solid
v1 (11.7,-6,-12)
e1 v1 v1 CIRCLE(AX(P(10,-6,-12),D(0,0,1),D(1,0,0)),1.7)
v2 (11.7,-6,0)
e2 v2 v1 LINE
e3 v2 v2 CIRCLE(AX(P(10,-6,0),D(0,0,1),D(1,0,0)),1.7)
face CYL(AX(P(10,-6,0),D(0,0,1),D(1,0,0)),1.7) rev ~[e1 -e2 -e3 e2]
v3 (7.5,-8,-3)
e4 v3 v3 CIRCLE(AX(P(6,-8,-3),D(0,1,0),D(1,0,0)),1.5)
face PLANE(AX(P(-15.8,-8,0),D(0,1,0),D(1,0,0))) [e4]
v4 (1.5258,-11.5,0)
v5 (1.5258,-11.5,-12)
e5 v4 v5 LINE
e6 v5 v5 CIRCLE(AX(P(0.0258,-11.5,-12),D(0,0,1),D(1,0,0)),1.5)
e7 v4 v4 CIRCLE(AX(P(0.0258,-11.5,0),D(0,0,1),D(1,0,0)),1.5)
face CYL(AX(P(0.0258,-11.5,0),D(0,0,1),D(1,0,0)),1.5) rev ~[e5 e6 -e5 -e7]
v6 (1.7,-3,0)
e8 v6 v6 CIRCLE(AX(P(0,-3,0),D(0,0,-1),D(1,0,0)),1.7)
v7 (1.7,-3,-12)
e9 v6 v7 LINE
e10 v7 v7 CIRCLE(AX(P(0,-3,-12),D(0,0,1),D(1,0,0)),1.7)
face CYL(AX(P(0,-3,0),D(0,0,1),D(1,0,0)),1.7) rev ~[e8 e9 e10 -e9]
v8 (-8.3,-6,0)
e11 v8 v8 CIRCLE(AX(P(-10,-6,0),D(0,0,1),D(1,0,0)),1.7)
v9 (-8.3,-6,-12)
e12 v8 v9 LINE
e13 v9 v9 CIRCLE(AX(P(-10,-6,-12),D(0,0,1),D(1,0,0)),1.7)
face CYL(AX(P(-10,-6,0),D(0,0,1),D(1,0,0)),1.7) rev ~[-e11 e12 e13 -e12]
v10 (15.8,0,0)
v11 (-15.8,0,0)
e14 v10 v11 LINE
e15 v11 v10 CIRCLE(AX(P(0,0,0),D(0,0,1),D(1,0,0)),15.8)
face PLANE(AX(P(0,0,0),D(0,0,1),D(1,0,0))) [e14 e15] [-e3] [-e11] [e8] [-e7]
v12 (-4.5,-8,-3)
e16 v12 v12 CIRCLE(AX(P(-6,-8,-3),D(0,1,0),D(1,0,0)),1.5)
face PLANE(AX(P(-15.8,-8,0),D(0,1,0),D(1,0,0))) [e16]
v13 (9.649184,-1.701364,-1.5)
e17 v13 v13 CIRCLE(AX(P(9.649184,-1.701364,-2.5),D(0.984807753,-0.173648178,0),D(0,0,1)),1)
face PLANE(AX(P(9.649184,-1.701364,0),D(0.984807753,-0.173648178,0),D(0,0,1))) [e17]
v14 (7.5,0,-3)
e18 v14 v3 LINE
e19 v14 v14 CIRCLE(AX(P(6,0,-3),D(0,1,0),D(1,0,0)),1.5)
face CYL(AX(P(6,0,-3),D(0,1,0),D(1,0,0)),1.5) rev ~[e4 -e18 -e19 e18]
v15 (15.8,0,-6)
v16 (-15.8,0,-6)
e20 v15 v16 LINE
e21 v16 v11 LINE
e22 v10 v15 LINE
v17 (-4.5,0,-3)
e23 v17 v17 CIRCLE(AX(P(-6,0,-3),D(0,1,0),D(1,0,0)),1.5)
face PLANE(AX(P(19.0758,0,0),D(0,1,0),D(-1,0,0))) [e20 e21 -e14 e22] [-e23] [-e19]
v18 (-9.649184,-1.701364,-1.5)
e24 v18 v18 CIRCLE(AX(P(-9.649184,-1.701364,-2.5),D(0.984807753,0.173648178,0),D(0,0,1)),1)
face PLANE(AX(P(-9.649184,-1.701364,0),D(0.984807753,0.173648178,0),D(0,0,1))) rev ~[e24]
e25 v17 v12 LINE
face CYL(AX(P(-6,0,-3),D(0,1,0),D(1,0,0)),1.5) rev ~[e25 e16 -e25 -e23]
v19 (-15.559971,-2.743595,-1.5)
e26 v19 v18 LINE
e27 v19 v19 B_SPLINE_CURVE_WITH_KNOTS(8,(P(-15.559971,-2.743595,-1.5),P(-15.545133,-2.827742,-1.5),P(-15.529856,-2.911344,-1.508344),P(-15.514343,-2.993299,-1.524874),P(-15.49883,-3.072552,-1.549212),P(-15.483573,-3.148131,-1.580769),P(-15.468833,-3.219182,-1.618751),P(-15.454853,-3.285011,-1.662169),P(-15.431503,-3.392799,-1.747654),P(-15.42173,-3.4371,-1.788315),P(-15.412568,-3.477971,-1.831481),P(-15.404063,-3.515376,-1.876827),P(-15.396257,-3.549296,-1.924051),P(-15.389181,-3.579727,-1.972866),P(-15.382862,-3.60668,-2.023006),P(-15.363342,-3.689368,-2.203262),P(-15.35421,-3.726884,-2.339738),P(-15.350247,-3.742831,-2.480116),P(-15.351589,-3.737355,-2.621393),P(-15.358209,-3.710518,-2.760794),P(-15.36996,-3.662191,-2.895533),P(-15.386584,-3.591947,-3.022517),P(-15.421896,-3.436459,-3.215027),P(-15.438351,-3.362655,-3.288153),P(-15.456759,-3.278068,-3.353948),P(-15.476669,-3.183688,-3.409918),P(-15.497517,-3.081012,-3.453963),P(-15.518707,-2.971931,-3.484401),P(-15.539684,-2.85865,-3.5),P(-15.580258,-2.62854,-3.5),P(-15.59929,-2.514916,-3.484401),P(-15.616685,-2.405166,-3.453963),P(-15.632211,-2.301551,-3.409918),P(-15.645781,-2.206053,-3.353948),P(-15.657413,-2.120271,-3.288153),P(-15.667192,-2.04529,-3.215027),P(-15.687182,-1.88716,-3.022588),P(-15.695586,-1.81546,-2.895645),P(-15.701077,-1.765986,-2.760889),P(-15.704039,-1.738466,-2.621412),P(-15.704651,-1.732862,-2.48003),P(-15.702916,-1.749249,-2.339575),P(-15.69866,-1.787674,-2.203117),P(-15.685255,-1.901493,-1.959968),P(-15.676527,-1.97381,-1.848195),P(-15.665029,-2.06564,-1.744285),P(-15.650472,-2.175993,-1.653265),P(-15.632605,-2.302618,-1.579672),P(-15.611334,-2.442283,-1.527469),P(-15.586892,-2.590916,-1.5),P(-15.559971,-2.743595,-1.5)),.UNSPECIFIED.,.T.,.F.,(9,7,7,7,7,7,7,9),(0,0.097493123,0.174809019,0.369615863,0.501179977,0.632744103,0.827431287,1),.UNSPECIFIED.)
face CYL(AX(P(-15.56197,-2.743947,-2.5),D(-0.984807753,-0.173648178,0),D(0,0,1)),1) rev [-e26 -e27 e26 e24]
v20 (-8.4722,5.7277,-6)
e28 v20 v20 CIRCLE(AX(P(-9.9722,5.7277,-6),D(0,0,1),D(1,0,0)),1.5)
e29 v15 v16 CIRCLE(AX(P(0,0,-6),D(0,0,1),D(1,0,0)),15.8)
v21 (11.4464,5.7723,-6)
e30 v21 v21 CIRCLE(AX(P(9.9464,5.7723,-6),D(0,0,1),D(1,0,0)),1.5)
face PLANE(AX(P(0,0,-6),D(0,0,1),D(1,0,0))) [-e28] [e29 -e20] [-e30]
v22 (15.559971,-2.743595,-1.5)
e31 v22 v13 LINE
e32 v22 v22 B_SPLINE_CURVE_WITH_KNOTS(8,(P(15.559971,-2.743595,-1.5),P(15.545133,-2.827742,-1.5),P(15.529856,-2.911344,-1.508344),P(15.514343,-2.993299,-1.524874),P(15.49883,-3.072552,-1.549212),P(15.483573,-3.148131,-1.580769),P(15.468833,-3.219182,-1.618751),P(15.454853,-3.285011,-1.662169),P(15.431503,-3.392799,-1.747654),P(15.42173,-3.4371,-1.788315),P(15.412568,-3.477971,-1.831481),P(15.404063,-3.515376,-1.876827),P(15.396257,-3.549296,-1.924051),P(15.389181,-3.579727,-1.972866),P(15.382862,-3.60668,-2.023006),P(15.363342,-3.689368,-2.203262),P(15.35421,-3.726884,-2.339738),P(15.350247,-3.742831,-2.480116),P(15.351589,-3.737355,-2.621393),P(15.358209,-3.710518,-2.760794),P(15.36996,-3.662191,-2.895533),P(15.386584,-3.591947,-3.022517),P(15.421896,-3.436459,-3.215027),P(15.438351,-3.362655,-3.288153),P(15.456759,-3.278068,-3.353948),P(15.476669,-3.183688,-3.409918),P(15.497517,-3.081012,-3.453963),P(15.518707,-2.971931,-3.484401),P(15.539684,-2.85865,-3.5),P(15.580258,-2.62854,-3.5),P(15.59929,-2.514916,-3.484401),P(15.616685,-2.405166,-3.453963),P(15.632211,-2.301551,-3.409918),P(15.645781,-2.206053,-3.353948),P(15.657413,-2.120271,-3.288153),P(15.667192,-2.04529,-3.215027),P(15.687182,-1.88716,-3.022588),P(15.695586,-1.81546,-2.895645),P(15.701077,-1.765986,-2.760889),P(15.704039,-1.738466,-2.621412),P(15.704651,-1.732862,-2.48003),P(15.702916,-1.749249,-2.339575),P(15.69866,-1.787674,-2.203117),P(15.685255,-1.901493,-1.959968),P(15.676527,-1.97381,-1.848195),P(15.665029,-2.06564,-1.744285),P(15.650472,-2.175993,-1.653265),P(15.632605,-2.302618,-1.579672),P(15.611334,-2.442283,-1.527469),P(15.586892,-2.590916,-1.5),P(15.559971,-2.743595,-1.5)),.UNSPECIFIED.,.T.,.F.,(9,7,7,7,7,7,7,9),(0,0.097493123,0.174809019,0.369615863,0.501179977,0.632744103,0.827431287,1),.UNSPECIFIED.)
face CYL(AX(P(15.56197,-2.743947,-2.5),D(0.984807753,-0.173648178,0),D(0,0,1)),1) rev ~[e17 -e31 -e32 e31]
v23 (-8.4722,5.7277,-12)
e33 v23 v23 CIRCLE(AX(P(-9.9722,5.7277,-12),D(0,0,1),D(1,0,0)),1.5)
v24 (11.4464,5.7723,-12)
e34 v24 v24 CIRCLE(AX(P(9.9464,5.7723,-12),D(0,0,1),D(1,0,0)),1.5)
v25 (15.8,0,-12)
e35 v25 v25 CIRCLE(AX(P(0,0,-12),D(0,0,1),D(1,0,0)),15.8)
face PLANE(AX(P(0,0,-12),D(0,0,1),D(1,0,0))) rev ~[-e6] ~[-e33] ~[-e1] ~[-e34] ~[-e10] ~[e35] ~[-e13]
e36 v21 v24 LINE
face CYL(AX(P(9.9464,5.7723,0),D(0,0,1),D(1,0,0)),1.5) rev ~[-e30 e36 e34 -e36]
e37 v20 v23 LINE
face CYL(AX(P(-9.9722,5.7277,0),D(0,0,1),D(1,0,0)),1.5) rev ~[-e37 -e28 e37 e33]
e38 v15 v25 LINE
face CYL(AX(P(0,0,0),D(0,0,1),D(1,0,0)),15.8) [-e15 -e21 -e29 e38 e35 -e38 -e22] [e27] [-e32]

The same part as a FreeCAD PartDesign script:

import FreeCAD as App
import Part
import Sketcher
Q = App.Units.Quantity

doc = App.newDocument("Part")
body = doc.addObject("PartDesign::Body", "Body")

sketch1 = body.newObject("Sketcher::SketchObject", "Sketch")
sketch1.AttachmentSupport = (doc.getObject("XY_Plane"), [""])
sketch1.MapMode = "FlatFace"
sketch1.addGeometry(Part.Circle(App.Vector(0, 0, 0), App.Vector(0, 0, 1), 15.8), False)
sketch1.addConstraint([
    Sketcher.Constraint("Coincident", 0, 3, -1, 1),
    Sketcher.Constraint("Diameter", 0, Q("31.6 mm")),
])
pad1 = body.newObject("PartDesign::Pad", "Pad")
pad1.Profile = sketch1
pad1.Length = 12
pad1.Reversed = True

sketch2 = body.newObject("Sketcher::SketchObject", "Sketch001")
sketch2.AttachmentSupport = (doc.getObject("XY_Plane"), [""])
sketch2.MapMode = "FlatFace"
sketch2.addGeometry([
    Part.Circle(App.Vector(0.0258, -11.5, 0), App.Vector(0, 0, 1), 1.5),
    Part.Circle(App.Vector(9.9464, 5.7723, 0), App.Vector(0, 0, 1), 1.5),
    Part.Circle(App.Vector(-9.9722, 5.7277, 0), App.Vector(0, 0, 1), 1.5),
], False)
sketch2.addConstraint([
    Sketcher.Constraint("Equal", 0, 1),
    Sketcher.Constraint("Equal", 1, 2),
    Sketcher.Constraint("Diameter", 0, Q("3 mm")),
    Sketcher.Constraint("DistanceY", 0, 3, -1, 1, Q("11.5 mm")),
    Sketcher.Constraint("DistanceX", 2, 3, 0, 3, Q("9.998 mm")),
    Sketcher.Constraint("DistanceX", -1, 1, 0, 3, Q("0.0258 mm")),
    Sketcher.Constraint("DistanceX", -1, 1, 1, 3, Q("9.9464 mm")),
    Sketcher.Constraint("DistanceY", -1, 1, 1, 3, Q("5.7723 mm")),
    Sketcher.Constraint("DistanceY", -1, 1, 2, 3, Q("5.7277 mm")),
])
pocket1 = body.newObject("PartDesign::Pocket", "Pocket")
pocket1.Profile = sketch2
pocket1.Type = "ThroughAll"

sketch3 = body.newObject("Sketcher::SketchObject", "Sketch002")
sketch3.AttachmentSupport = (doc.getObject("XY_Plane"), [""])
sketch3.MapMode = "FlatFace"
sketch3.addGeometry([
    Part.Circle(App.Vector(-10, -6, 0), App.Vector(0, 0, 1), 1.7),
    Part.Circle(App.Vector(10, -6, 0), App.Vector(0, 0, 1), 1.7),
    Part.Circle(App.Vector(0, -3, 0), App.Vector(0, 0, 1), 1.7),
], False)
sketch3.addConstraint([
    Sketcher.Constraint("Equal", 0, 1),
    Sketcher.Constraint("Equal", 1, 2),
    Sketcher.Constraint("Symmetric", 0, 3, 1, 3, -2),
    Sketcher.Constraint("PointOnObject", 2, 3, -2),
    Sketcher.Constraint("Diameter", 0, Q("3.4 mm")),
    Sketcher.Constraint("DistanceX", 0, 3, -1, 1, Q("10 mm")),
    Sketcher.Constraint("DistanceY", 0, 3, -1, 1, Q("6 mm")),
    Sketcher.Constraint("DistanceY", 2, 3, -1, 1, Q("3 mm")),
])
pocket2 = body.newObject("PartDesign::Pocket", "Pocket001")
pocket2.Profile = sketch3
pocket2.Type = "ThroughAll"

sketch4 = body.newObject("Sketcher::SketchObject", "Sketch003")
sketch4.Placement = App.Placement(App.Vector(-15.56, -2.7436, 0), App.Rotation(App.Vector(0, 0, 1), App.Vector(0.173648178, -0.984807753, 0), App.Vector(0.984807753, 0.173648178, 0), "ZXY"))
sketch4.addGeometry(Part.Circle(App.Vector(-2.5, 0, 0), App.Vector(0, 0, 1), 1), False)
sketch4.addConstraint([
    Sketcher.Constraint("PointOnObject", 0, 3, -1),
    Sketcher.Constraint("Diameter", 0, Q("2 mm")),
    Sketcher.Constraint("DistanceX", 0, 3, -1, 1, Q("2.5 mm")),
])
pocket3 = body.newObject("PartDesign::Pocket", "Pocket002")
pocket3.Profile = sketch4
pocket3.Length = 6
pocket3.Reversed = True

sketch5 = body.newObject("Sketcher::SketchObject", "Sketch004")
sketch5.Placement = App.Placement(App.Vector(15.56, -2.7436, 0), App.Rotation(App.Vector(0, 0, 1), App.Vector(-0.173648178, -0.984807753, 0), App.Vector(0.984807753, -0.173648178, 0), "ZXY"))
sketch5.addGeometry(Part.Circle(App.Vector(-2.5, 0, 0), App.Vector(0, 0, 1), 1), False)
sketch5.addConstraint([
    Sketcher.Constraint("PointOnObject", 0, 3, -1),
    Sketcher.Constraint("Diameter", 0, Q("2 mm")),
    Sketcher.Constraint("DistanceX", 0, 3, -1, 1, Q("2.5 mm")),
])
pocket4 = body.newObject("PartDesign::Pocket", "Pocket003")
pocket4.Profile = sketch5
pocket4.Length = 6

sketch6 = body.newObject("Sketcher::SketchObject", "Sketch005")
sketch6.AttachmentSupport = (doc.getObject("XY_Plane"), [""])
sketch6.MapMode = "FlatFace"
sketch6.addGeometry([
    Part.LineSegment(App.Vector(19.0758, 17.2113, 0), App.Vector(-18.9802, 17.2113, 0)),
    Part.LineSegment(App.Vector(-18.9802, 17.2113, 0), App.Vector(-18.9802, 0, 0)),
    Part.LineSegment(App.Vector(-18.9802, 0, 0), App.Vector(19.0758, 0, 0)),
    Part.LineSegment(App.Vector(19.0758, 0, 0), App.Vector(19.0758, 17.2113, 0)),
], False)
sketch6.addConstraint([
    Sketcher.Constraint("Coincident", 0, 2, 1, 1),
    Sketcher.Constraint("Coincident", 1, 2, 2, 1),
    Sketcher.Constraint("Coincident", 2, 2, 3, 1),
    Sketcher.Constraint("Coincident", 3, 2, 0, 1),
    Sketcher.Constraint("Horizontal", 0),
    Sketcher.Constraint("Vertical", 1),
    Sketcher.Constraint("Horizontal", 2),
    Sketcher.Constraint("Vertical", 3),
    Sketcher.Constraint("PointOnObject", 1, 2, -1),
    Sketcher.Constraint("DistanceX", 0, 2, 0, 1, Q("38.056 mm")),
    Sketcher.Constraint("DistanceY", 1, 2, 1, 1, Q("17.2113 mm")),
    Sketcher.Constraint("DistanceX", 0, 2, -1, 1, Q("18.9802 mm")),
])
pocket5 = body.newObject("PartDesign::Pocket", "Pocket004")
pocket5.Profile = sketch6
pocket5.Length = 6

sketch7 = body.newObject("Sketcher::SketchObject", "Sketch006")
sketch7.AttachmentSupport = (doc.getObject("XZ_Plane"), [""])
sketch7.MapMode = "FlatFace"
sketch7.addGeometry([
    Part.Circle(App.Vector(-6, -3, 0), App.Vector(0, 0, 1), 1.5),
    Part.Circle(App.Vector(6, -3, 0), App.Vector(0, 0, 1), 1.5),
], False)
sketch7.addConstraint([
    Sketcher.Constraint("Equal", 0, 1),
    Sketcher.Constraint("Symmetric", 0, 3, 1, 3, -2),
    Sketcher.Constraint("Diameter", 0, Q("3 mm")),
    Sketcher.Constraint("DistanceX", 0, 3, -1, 1, Q("6 mm")),
    Sketcher.Constraint("DistanceY", 0, 3, -1, 1, Q("3 mm")),
])
pocket6 = body.newObject("PartDesign::Pocket", "Pocket005")
pocket6.Profile = sketch7
pocket6.Length = 8
pocket6.Reversed = True

doc.recompute()
